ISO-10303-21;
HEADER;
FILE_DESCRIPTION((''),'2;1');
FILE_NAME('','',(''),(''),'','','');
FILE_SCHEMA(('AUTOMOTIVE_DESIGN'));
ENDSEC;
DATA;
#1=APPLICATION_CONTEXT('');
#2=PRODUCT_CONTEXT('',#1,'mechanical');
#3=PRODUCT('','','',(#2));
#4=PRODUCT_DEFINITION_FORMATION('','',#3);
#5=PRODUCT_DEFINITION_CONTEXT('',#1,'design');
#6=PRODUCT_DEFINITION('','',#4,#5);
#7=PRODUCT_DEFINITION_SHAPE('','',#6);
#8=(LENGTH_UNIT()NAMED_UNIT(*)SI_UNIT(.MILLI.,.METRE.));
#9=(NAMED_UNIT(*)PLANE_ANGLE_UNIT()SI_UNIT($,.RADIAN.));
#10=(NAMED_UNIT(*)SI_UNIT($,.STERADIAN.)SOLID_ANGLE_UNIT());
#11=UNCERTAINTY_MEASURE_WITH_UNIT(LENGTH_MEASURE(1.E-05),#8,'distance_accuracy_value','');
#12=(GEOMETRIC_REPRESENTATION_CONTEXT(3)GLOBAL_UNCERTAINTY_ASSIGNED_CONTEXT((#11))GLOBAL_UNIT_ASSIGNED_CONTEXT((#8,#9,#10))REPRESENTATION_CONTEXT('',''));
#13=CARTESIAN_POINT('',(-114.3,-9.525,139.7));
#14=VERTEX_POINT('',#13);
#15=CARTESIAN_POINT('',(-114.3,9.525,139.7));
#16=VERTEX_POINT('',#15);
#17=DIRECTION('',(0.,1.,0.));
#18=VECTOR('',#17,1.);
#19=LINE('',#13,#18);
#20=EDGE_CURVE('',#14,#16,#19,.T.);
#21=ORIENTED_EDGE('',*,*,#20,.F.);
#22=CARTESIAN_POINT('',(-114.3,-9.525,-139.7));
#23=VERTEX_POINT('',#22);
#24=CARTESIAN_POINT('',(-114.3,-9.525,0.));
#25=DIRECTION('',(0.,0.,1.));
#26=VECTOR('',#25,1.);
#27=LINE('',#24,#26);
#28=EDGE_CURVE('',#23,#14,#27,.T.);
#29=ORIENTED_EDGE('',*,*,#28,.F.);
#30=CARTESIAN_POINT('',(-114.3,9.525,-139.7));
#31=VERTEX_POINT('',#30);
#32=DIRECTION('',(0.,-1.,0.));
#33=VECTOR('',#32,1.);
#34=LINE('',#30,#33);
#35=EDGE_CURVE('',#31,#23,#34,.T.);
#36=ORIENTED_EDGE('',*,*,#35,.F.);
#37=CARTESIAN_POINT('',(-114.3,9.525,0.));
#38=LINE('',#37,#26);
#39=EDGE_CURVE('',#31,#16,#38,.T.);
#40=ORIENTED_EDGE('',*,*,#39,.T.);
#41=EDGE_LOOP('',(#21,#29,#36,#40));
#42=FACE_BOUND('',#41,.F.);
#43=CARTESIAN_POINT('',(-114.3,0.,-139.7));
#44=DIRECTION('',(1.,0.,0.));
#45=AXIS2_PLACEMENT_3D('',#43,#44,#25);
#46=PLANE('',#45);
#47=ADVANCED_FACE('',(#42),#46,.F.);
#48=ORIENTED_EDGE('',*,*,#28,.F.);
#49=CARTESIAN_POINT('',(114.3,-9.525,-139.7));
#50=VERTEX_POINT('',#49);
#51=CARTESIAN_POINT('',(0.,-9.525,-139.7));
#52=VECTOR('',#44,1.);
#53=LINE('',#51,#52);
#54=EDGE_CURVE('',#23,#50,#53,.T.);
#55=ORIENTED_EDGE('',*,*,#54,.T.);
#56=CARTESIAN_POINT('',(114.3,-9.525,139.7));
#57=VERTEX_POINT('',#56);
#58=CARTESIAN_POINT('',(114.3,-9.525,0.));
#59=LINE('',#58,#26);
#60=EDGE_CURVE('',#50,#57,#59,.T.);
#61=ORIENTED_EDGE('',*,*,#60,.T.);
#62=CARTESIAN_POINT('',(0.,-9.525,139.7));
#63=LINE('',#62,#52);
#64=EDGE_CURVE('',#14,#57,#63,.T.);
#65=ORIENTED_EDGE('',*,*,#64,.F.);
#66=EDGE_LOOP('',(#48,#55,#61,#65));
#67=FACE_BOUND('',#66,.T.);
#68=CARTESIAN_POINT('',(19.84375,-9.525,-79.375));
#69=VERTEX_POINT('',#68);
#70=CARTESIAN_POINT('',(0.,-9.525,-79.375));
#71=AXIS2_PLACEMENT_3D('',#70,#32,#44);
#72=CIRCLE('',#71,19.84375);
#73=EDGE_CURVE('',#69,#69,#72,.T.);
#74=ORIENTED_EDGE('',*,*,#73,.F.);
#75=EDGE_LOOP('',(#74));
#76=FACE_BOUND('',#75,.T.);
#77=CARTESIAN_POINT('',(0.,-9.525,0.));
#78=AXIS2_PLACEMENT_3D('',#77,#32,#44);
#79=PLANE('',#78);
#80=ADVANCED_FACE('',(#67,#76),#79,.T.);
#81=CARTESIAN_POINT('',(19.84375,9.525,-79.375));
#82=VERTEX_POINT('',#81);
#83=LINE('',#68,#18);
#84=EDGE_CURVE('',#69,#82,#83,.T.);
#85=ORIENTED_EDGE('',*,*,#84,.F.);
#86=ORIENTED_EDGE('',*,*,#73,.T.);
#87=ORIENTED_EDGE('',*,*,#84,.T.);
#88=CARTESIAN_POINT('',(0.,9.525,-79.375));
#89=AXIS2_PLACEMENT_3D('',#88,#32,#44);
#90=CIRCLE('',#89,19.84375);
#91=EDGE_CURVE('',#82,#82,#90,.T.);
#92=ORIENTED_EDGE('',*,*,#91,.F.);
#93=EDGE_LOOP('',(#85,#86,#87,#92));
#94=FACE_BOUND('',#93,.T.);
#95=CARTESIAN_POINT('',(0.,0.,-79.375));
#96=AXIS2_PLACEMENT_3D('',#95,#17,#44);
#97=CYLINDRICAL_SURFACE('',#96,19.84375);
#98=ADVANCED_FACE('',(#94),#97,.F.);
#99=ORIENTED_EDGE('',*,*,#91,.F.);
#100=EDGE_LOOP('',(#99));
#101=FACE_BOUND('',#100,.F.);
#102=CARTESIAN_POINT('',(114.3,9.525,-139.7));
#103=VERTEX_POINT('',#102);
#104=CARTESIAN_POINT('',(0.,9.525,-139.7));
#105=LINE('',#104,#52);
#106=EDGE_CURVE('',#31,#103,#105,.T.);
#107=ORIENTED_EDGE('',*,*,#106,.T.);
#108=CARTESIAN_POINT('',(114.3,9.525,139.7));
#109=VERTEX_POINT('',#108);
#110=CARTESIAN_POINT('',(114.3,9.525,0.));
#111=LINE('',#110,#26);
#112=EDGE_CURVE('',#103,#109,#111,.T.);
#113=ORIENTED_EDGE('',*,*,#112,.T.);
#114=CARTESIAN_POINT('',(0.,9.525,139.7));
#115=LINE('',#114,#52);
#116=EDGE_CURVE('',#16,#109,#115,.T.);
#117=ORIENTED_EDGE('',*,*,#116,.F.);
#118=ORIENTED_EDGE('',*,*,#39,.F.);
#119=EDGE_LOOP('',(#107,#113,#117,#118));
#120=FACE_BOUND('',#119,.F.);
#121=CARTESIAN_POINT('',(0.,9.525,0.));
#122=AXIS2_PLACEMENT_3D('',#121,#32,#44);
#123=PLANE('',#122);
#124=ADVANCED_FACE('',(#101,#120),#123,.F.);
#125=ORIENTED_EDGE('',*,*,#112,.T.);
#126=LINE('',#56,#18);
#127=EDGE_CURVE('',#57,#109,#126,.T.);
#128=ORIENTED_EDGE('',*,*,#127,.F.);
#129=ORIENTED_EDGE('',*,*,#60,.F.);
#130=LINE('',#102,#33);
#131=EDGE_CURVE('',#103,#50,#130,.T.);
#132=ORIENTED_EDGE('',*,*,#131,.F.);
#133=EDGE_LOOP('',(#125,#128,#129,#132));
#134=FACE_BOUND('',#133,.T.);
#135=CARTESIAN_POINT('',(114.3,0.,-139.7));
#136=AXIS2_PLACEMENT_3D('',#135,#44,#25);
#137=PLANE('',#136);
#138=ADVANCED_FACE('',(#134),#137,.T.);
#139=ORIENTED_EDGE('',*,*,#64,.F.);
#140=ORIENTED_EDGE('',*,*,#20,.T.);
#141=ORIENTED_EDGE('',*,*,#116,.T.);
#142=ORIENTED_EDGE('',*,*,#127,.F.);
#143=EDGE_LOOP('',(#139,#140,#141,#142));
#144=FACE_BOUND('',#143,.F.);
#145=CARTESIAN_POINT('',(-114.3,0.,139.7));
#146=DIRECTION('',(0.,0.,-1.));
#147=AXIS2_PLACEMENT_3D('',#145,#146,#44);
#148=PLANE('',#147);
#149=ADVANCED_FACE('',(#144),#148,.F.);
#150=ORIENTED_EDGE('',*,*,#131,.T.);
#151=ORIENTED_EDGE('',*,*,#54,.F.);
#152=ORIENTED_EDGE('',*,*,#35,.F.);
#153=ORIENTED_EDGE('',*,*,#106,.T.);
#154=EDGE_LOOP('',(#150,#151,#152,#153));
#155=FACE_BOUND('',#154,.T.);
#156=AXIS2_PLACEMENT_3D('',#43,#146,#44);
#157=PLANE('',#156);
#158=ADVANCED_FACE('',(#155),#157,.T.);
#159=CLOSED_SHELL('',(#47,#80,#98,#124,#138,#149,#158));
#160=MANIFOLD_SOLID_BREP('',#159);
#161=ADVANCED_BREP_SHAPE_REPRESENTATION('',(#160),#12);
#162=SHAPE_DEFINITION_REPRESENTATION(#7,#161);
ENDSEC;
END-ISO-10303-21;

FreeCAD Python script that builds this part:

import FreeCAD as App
import Part
import Sketcher

V = App.Vector
Q = App.Units.Quantity

doc = App.newDocument("Part")
body = doc.addObject("PartDesign::Body", "Body")

# Sketch on XZ plane
sketch1 = body.newObject("Sketcher::SketchObject", "Sketch")
sketch1.AttachmentSupport = (doc.getObject("XZ_Plane"), [""])
sketch1.MapMode = "FlatFace"
sketch1.addGeometry([
    Part.LineSegment(V(-114, 140, 0), V(-114, -140, 0)),  # 0
    Part.LineSegment(V(-114, -140, 0), V(114, -140, 0)),  # 1
    Part.LineSegment(V(114, -140, 0), V(114, 140, 0)),  # 2
    Part.LineSegment(V(114, 140, 0), V(-114, 140, 0)),  # 3
    Part.Circle(V(0, -79, 0), V(0, 0, 1), 20),  # 4
], False)
sketch1.addConstraint([
    Sketcher.Constraint("Coincident", 0, 2, 1, 1),
    Sketcher.Constraint("Coincident", 1, 2, 2, 1),
    Sketcher.Constraint("Coincident", 2, 2, 3, 1),
    Sketcher.Constraint("Coincident", 3, 2, 0, 1),
    Sketcher.Constraint("Vertical", 0),
    Sketcher.Constraint("Horizontal", 1),
    Sketcher.Constraint("Vertical", 2),
    Sketcher.Constraint("Horizontal", 3),
    Sketcher.Constraint("Symmetric", 0, 2, 2, 2, -1, 1),
    Sketcher.Constraint("PointOnObject", 4, 3, -2),
    Sketcher.Constraint("DistanceX", 1, 1, 1, 2, Q("9 in")),
    Sketcher.Constraint("DistanceY", 0, 2, 0, 1, Q("11 in")),
    Sketcher.Constraint("Diameter", 4, Q("1.5625 in")),
    Sketcher.Constraint("DistanceY", 4, 3, -1, 1, Q("3.125 in")),
])
pad1 = body.newObject("PartDesign::Pad", "Pad")
pad1.Profile = sketch1
pad1.Length = Q("0.75 in")
pad1.Midplane = True

doc.recompute()
